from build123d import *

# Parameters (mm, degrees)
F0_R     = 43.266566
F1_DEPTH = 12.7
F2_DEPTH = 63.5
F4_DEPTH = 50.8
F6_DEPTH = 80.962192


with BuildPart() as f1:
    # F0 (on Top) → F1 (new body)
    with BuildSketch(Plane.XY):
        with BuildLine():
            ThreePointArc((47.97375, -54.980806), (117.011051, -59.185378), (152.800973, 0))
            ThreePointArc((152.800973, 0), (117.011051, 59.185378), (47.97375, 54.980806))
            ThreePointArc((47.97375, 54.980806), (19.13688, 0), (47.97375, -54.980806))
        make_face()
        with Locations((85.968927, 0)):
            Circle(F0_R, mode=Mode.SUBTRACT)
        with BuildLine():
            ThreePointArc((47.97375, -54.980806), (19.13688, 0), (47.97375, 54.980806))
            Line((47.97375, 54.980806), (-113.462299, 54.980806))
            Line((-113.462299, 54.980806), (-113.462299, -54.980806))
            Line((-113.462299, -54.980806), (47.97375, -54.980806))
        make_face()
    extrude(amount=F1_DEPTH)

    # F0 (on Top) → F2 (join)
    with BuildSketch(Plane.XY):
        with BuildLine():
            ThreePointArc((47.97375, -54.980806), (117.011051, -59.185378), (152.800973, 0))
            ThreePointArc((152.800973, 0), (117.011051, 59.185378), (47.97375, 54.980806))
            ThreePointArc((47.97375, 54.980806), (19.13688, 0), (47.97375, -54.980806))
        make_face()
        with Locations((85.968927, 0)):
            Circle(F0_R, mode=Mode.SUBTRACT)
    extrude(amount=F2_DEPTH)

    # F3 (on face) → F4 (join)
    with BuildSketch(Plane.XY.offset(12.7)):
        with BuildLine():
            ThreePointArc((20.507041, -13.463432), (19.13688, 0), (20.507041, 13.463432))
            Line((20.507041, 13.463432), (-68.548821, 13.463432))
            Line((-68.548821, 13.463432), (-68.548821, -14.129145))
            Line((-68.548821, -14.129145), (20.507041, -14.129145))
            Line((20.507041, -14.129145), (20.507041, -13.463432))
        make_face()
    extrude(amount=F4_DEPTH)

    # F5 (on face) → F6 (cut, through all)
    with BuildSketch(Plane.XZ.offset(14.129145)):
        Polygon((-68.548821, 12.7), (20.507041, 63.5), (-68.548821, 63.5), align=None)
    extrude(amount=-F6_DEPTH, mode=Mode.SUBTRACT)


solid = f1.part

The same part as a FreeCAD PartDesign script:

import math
import FreeCAD as App
import Part
import Sketcher

V = App.Vector
Q = App.Units.Quantity


def add_polygon(sketch, points):
    """Adds a closed chain of lines whose ends are joined by coincident constraints."""
    first, n = sketch.GeometryCount, len(points)
    for a, b in zip(points, points[1:] + points[:1]):
        sketch.addGeometry(Part.LineSegment(App.Vector(*a, 0), App.Vector(*b, 0)), False)
    for i in range(n):
        sketch.addConstraint(Sketcher.Constraint("Coincident", first + i, 2, first + (i + 1) % n, 1))

doc = App.newDocument("Part")
params = doc.addObject("Spreadsheet::Sheet", "Params")
for row, (alias, value) in enumerate([
    ("pad1_length", "0.5 in"),
    ("pad2_length", "2.5 in"),
    ("pad3_length", "2 in"),
    ("sketch4_height", "2 in"),
], start=1):
    params.set(f"A{row}", alias)
    params.set(f"B{row}", "=" + value)
    params.setAlias(f"B{row}", alias)

body = doc.addObject("PartDesign::Body", "Body")

# Sketch on XY plane
sketch1 = body.newObject("Sketcher::SketchObject", "Sketch")
sketch1.AttachmentSupport = (doc.getObject("XY_Plane"), [""])
sketch1.MapMode = "FlatFace"
sketch1.addGeometry(Part.ArcOfCircle(Part.Circle(V(85.968926, 0, 0), V(0, 0, 1), 66.832047), math.radians(-124.646899), math.radians(0)), False)
sketch1.addGeometry(Part.ArcOfCircle(Part.Circle(V(85.968926, 0, 0), V(0, 0, 1), 66.832047), math.radians(0), math.radians(124.646899)), False)
sketch1.addGeometry(Part.LineSegment(V(47.97375, 54.980806, 0), V(-113.462299, 54.980806, 0)), False)
sketch1.addGeometry(Part.LineSegment(V(-113.462299, 54.980806, 0), V(-113.462299, -54.980806, 0)), False)
sketch1.addGeometry(Part.LineSegment(V(-113.462299, -54.980806, 0), V(47.97375, -54.980806, 0)), False)
sketch1.addGeometry(Part.Circle(V(85.968927, 0, 0), V(0, 0, 1), 43.266566), False)
sketch1.addConstraint(Sketcher.Constraint("Tangent", 0, 2, 1, 1))
sketch1.addConstraint(Sketcher.Constraint("Coincident", 1, 2, 2, 1))
sketch1.addConstraint(Sketcher.Constraint("Coincident", 2, 2, 3, 1))
sketch1.addConstraint(Sketcher.Constraint("Coincident", 3, 2, 4, 1))
sketch1.addConstraint(Sketcher.Constraint("Coincident", 4, 2, 0, 1))
sketch1.addConstraint(Sketcher.Constraint("Horizontal", 2))
sketch1.addConstraint(Sketcher.Constraint("Vertical", 3))
sketch1.addConstraint(Sketcher.Constraint("Horizontal", 4))
sketch1.addConstraint(Sketcher.Constraint("Coincident", 5, 3, 0, 3))
sketch1.addConstraint(Sketcher.Constraint("Equal", 0, 1))
sketch1.addConstraint(Sketcher.Constraint("Symmetric", 1, 2, 4, 2, -1))
sketch1.addConstraint(Sketcher.Constraint("PointOnObject", 0, 2, -1))
sketch1.addConstraint(Sketcher.Constraint("Diameter", 5, Q("86.533132 mm")))
sketch1.addConstraint(Sketcher.Constraint("Radius", 0, Q("66.832047 mm")))
sketch1.addConstraint(Sketcher.Constraint("DistanceX", 2, 2, 2, 1, Q("161.436049 mm")))
sketch1.addConstraint(Sketcher.Constraint("DistanceX", 2, 2, -1, 1, Q("113.462299 mm")))
sketch1.addConstraint(Sketcher.Constraint("DistanceY", 3, 2, 3, 1, Q("109.961612 mm")))
pad1 = body.newObject("PartDesign::Pad", "Pad")
pad1.Profile = sketch1
pad1.setExpression("Length", "Params.pad1_length")

# Sketch on XY plane
sketch2 = body.newObject("Sketcher::SketchObject", "Sketch001")
sketch2.AttachmentSupport = (doc.getObject("XY_Plane"), [""])
sketch2.MapMode = "FlatFace"
sketch2.addGeometry(Part.ArcOfCircle(Part.Circle(V(85.968926, 0, 0), V(0, 0, 1), 66.832047), math.radians(-124.646899), math.radians(0)), False)
sketch2.addGeometry(Part.ArcOfCircle(Part.Circle(V(85.968926, 0, 0), V(0, 0, 1), 66.832047), math.radians(0), math.radians(124.646899)), False)
sketch2.addGeometry(Part.ArcOfCircle(Part.Circle(V(85.968927, 0, 0), V(0, 0, 1), 66.832047), math.radians(124.646899), math.radians(235.353101)), False)
sketch2.addGeometry(Part.Circle(V(85.968927, 0, 0), V(0, 0, 1), 43.266566), False)
sketch2.addConstraint(Sketcher.Constraint("Tangent", 0, 2, 1, 1))
sketch2.addConstraint(Sketcher.Constraint("Tangent", 1, 2, 2, 1))
sketch2.addConstraint(Sketcher.Constraint("Tangent", 2, 2, 0, 1))
sketch2.addConstraint(Sketcher.Constraint("Coincident", 3, 3, 0, 3))
sketch2.addConstraint(Sketcher.Constraint("Symmetric", 1, 2, 2, 2, -1))
sketch2.addConstraint(Sketcher.Constraint("PointOnObject", 0, 2, -1))
sketch2.addConstraint(Sketcher.Constraint("Diameter", 3, Q("86.533132 mm")))
sketch2.addConstraint(Sketcher.Constraint("Radius", 0, Q("66.832047 mm")))
sketch2.addConstraint(Sketcher.Constraint("DistanceX", -1, 1, 1, 2, Q("47.97375 mm")))
sketch2.addConstraint(Sketcher.Constraint("DistanceX", -1, 1, 0, 3, Q("85.968926 mm")))
pad2 = body.newObject("PartDesign::Pad", "Pad001")
pad2.Profile = sketch2
pad2.setExpression("Length", "Params.pad2_length")

# Sketch on XY plane
sketch3 = body.newObject("Sketcher::SketchObject", "Sketch002")
sketch3.AttachmentSupport = (doc.getObject("XY_Plane"), [""])
sketch3.MapMode = "FlatFace"
sketch3.AttachmentOffset = App.Placement(V(0, 0, 0.5 * 25.4), App.Rotation())
sketch3.addGeometry(Part.ArcOfCircle(Part.Circle(V(85.968932, 0, 0), V(0, 0, 1), 66.832052), math.radians(168.378135), math.radians(191.621865)), False)
sketch3.addGeometry(Part.LineSegment(V(20.507041, 13.463432, 0), V(-68.548821, 13.463432, 0)), False)
sketch3.addGeometry(Part.LineSegment(V(-68.548821, 13.463432, 0), V(-68.548821, -14.129145, 0)), False)
sketch3.addGeometry(Part.LineSegment(V(-68.548821, -14.129145, 0), V(20.507041, -14.129145, 0)), False)
sketch3.addGeometry(Part.LineSegment(V(20.507041, -14.129145, 0), V(20.507041, -13.463432, 0)), False)
sketch3.addConstraint(Sketcher.Constraint("Coincident", 0, 1, 1, 1))
sketch3.addConstraint(Sketcher.Constraint("Coincident", 1, 2, 2, 1))
sketch3.addConstraint(Sketcher.Constraint("Coincident", 2, 2, 3, 1))
sketch3.addConstraint(Sketcher.Constraint("Coincident", 3, 2, 4, 1))
sketch3.addConstraint(Sketcher.Constraint("Coincident", 4, 2, 0, 2))
sketch3.addConstraint(Sketcher.Constraint("Horizontal", 1))
sketch3.addConstraint(Sketcher.Constraint("Vertical", 2))
sketch3.addConstraint(Sketcher.Constraint("Horizontal", 3))
sketch3.addConstraint(Sketcher.Constraint("Vertical", 4))
sketch3.addConstraint(Sketcher.Constraint("Symmetric", 0, 1, 4, 2, -1))
sketch3.addConstraint(Sketcher.Constraint("Radius", 0, Q("66.832052 mm")))
sketch3.addConstraint(Sketcher.Constraint("DistanceX", 1, 2, 1, 1, Q("89.055862 mm")))
sketch3.addConstraint(Sketcher.Constraint("DistanceY", 2, 2, 2, 1, Q("27.592577 mm")))
sketch3.addConstraint(Sketcher.Constraint("DistanceY", 4, 1, 4, 2, Q("0.665713 mm")))
sketch3.addConstraint(Sketcher.Constraint("DistanceX", -1, 1, 0, 3, Q("85.968932 mm")))
pad3 = body.newObject("PartDesign::Pad", "Pad002")
pad3.Profile = sketch3
pad3.setExpression("Length", "Params.pad3_length")

# Sketch on XZ plane
sketch4 = body.newObject("Sketcher::SketchObject", "Sketch003")
sketch4.AttachmentSupport = (doc.getObject("XZ_Plane"), [""])
sketch4.MapMode = "FlatFace"
sketch4.AttachmentOffset = App.Placement(V(0, 0, 14.129145), App.Rotation())
add_polygon(sketch4, [(-68.548821, 12.7), (20.507041, 63.5), (-68.548821, 63.5)])  # lines 0-2
sketch4.addConstraint(Sketcher.Constraint("Horizontal", 1))
sketch4.addConstraint(Sketcher.Constraint("Vertical", 2))
sketch4.addConstraint(Sketcher.Constraint("DistanceY", 2, 2, 2, 1, Q("2 in")))
sketch4.addConstraint(Sketcher.Constraint("DistanceY", -1, 1, 0, 2, Q("2.5 in")))
sketch4.addConstraint(Sketcher.Constraint("Distance", 0, Q("102.526029 mm")))
sketch4.addConstraint(Sketcher.Constraint("DistanceX", -1, 1, 0, 2, Q("20.507041 mm")))
sketch4.setExpression("Constraints[5]", "Params.sketch4_height")
pocket1 = body.newObject("PartDesign::Pocket", "Pocket")
pocket1.Profile = sketch4
pocket1.Type = "ThroughAll"

doc.recompute()
